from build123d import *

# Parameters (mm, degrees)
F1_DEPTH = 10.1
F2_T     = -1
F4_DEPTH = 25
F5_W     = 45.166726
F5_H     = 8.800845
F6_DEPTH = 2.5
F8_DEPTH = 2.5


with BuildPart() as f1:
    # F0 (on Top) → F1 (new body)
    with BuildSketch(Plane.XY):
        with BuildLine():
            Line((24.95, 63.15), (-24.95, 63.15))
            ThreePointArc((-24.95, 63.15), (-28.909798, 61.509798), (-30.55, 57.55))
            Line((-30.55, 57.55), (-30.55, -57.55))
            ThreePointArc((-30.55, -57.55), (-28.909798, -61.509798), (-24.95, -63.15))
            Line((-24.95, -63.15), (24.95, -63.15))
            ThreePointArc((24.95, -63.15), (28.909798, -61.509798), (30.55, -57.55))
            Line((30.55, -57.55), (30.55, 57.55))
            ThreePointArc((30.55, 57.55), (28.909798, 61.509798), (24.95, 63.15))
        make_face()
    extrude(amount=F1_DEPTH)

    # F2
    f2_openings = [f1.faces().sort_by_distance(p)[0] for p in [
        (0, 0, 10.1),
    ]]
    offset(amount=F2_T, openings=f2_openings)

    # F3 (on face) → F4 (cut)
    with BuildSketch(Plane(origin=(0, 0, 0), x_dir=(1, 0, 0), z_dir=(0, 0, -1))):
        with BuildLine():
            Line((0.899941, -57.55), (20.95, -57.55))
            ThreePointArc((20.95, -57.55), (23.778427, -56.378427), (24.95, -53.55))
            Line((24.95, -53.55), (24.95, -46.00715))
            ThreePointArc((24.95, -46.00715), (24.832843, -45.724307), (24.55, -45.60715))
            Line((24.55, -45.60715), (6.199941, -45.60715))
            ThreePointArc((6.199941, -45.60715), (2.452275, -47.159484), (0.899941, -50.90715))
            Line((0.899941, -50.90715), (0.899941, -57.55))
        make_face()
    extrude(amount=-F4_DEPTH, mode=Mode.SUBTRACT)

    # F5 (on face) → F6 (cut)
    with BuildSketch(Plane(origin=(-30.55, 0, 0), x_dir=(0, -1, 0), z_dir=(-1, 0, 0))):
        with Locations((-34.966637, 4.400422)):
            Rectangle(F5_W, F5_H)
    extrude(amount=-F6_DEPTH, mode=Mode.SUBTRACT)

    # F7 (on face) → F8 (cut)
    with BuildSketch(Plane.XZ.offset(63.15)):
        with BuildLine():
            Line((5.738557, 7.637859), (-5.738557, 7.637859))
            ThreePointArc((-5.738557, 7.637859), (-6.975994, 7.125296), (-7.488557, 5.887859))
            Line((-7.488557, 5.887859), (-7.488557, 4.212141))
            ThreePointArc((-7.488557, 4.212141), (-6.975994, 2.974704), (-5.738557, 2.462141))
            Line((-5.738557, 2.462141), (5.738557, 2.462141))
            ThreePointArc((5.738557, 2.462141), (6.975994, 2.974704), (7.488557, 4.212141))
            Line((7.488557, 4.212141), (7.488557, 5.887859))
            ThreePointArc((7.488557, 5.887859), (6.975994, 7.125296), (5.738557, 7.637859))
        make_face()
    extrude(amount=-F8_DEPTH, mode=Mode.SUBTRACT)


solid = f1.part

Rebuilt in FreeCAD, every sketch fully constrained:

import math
import FreeCAD as App
import Part
import Sketcher
Q = App.Units.Quantity


def faces_at(feature, points):
    """Names of the faces that lie closest to the given points."""
    faces = feature.Shape.Faces
    near = lambda p: min(range(len(faces)), key=lambda i: faces[i].distToShape(Part.Vertex(*p))[0])
    return sorted({f"Face{near(p) + 1}" for p in points})

doc = App.newDocument("Part")
body = doc.addObject("PartDesign::Body", "Body")

# Sketch on XY plane
sketch1 = body.newObject("Sketcher::SketchObject", "Sketch")
sketch1.AttachmentSupport = (doc.getObject("XY_Plane"), [""])
sketch1.MapMode = "FlatFace"
sketch1.addGeometry(Part.LineSegment(App.Vector(25, 63, 0), App.Vector(-25, 63, 0)), False)
sketch1.addGeometry(Part.ArcOfCircle(Part.Circle(App.Vector(-25, 58, 0), App.Vector(0, 0, 1), 6), math.radians(90), math.radians(180)), False)
sketch1.addGeometry(Part.LineSegment(App.Vector(-31, 58, 0), App.Vector(-31, -58, 0)), False)
sketch1.addGeometry(Part.ArcOfCircle(Part.Circle(App.Vector(-25, -58, 0), App.Vector(0, 0, 1), 6), math.radians(180), math.radians(270)), False)
sketch1.addGeometry(Part.LineSegment(App.Vector(-25, -63, 0), App.Vector(25, -63, 0)), False)
sketch1.addGeometry(Part.ArcOfCircle(Part.Circle(App.Vector(25, -58, 0), App.Vector(0, 0, 1), 6), math.radians(-90), math.radians(0)), False)
sketch1.addGeometry(Part.LineSegment(App.Vector(31, -58, 0), App.Vector(31, 58, 0)), False)
sketch1.addGeometry(Part.ArcOfCircle(Part.Circle(App.Vector(25, 58, 0), App.Vector(0, 0, 1), 6), math.radians(0), math.radians(90)), False)
sketch1.addConstraint(Sketcher.Constraint("Tangent", 0, 2, 1, 1))
sketch1.addConstraint(Sketcher.Constraint("Tangent", 1, 2, 2, 1))
sketch1.addConstraint(Sketcher.Constraint("Tangent", 2, 2, 3, 1))
sketch1.addConstraint(Sketcher.Constraint("Tangent", 3, 2, 4, 1))
sketch1.addConstraint(Sketcher.Constraint("Tangent", 4, 2, 5, 1))
sketch1.addConstraint(Sketcher.Constraint("Tangent", 5, 2, 6, 1))
sketch1.addConstraint(Sketcher.Constraint("Tangent", 6, 2, 7, 1))
sketch1.addConstraint(Sketcher.Constraint("Tangent", 7, 2, 0, 1))
sketch1.addConstraint(Sketcher.Constraint("Horizontal", 0))
sketch1.addConstraint(Sketcher.Constraint("Vertical", 2))
sketch1.addConstraint(Sketcher.Constraint("Horizontal", 4))
sketch1.addConstraint(Sketcher.Constraint("Vertical", 6))
sketch1.addConstraint(Sketcher.Constraint("Equal", 1, 3))
sketch1.addConstraint(Sketcher.Constraint("Equal", 3, 5))
sketch1.addConstraint(Sketcher.Constraint("Equal", 5, 7))
sketch1.addConstraint(Sketcher.Constraint("Symmetric", 1, 3, 5, 3, -1, 1))
sketch1.addConstraint(Sketcher.Constraint("Radius", 1, Q("5.6 mm")))
sketch1.addConstraint(Sketcher.Constraint("DistanceX", 0, 2, 0, 1, Q("49.9 mm")))
sketch1.addConstraint(Sketcher.Constraint("DistanceY", 2, 2, 2, 1, Q("115.1 mm")))
pad1 = body.newObject("PartDesign::Pad", "Pad")
pad1.Profile = sketch1
pad1.Length = 10.1
doc.recompute()

thickness = body.newObject("PartDesign::Thickness", "Thickness")
thickness.Base = (pad1, faces_at(pad1, [(0, 0, 10.1)]))
thickness.Value = 1
thickness.Reversed = True
thickness.Join = "Arc"

# Sketch on XY plane
sketch2 = body.newObject("Sketcher::SketchObject", "Sketch001")
sketch2.AttachmentSupport = (doc.getObject("XY_Plane"), [""])
sketch2.MapMode = "FlatFace"
sketch2.addGeometry(Part.LineSegment(App.Vector(0.9, 57.55, 0), App.Vector(20.95, 57.55, 0)), False)
sketch2.addGeometry(Part.ArcOfCircle(Part.Circle(App.Vector(20.95, 53.55, 0), App.Vector(0, 0, 1), 4), math.radians(0), math.radians(90)), False)
sketch2.addGeometry(Part.LineSegment(App.Vector(24.95, 53.55, 0), App.Vector(24.95, 46.01, 0)), False)
sketch2.addGeometry(Part.ArcOfCircle(Part.Circle(App.Vector(24.55, 46.01, 0), App.Vector(0, 0, 1), 0.4), math.radians(-90), math.radians(0)), False)
sketch2.addGeometry(Part.LineSegment(App.Vector(24.55, 45.61, 0), App.Vector(6.2, 45.61, 0)), False)
sketch2.addGeometry(Part.ArcOfCircle(Part.Circle(App.Vector(6.2, 50.91, 0), App.Vector(0, 0, 1), 5.3), math.radians(180), math.radians(270)), False)
sketch2.addGeometry(Part.LineSegment(App.Vector(0.9, 50.91, 0), App.Vector(0.9, 57.55, 0)), False)
sketch2.addConstraint(Sketcher.Constraint("Tangent", 0, 2, 1, 2))
sketch2.addConstraint(Sketcher.Constraint("Tangent", 1, 1, 2, 1))
sketch2.addConstraint(Sketcher.Constraint("Coincident", 2, 2, 3, 2))
sketch2.addConstraint(Sketcher.Constraint("Coincident", 3, 1, 4, 1))
sketch2.addConstraint(Sketcher.Constraint("Tangent", 4, 2, 5, 2))
sketch2.addConstraint(Sketcher.Constraint("Tangent", 5, 1, 6, 1))
sketch2.addConstraint(Sketcher.Constraint("Coincident", 6, 2, 0, 1))
sketch2.addConstraint(Sketcher.Constraint("Horizontal", 0))
sketch2.addConstraint(Sketcher.Constraint("Vertical", 2))
sketch2.addConstraint(Sketcher.Constraint("Horizontal", 4))
sketch2.addConstraint(Sketcher.Constraint("Vertical", 6))
sketch2.addConstraint(Sketcher.Constraint("Horizontal", 3, 3, 2, 2))
sketch2.addConstraint(Sketcher.Constraint("Radius", 1, Q("4 mm")))
sketch2.addConstraint(Sketcher.Constraint("Radius", 3, Q("0.399999 mm")))
sketch2.addConstraint(Sketcher.Constraint("Radius", 5, Q("5.3 mm")))
sketch2.addConstraint(Sketcher.Constraint("DistanceX", 3, 1, 2, 2, Q("0.4 mm")))
sketch2.addConstraint(Sketcher.Constraint("DistanceX", -1, 1, 1, 3, Q("20.95 mm")))
sketch2.addConstraint(Sketcher.Constraint("DistanceY", -1, 1, 1, 3, Q("53.55 mm")))
sketch2.addConstraint(Sketcher.Constraint("DistanceX", 0, 1, 0, 2, Q("20.050059 mm")))
sketch2.addConstraint(Sketcher.Constraint("DistanceY", 2, 2, 2, 1, Q("7.54285 mm")))
pocket1 = body.newObject("PartDesign::Pocket", "Pocket")
pocket1.Profile = sketch2
pocket1.Length = 25
pocket1.Reversed = True

# Sketch on YZ plane
sketch3 = body.newObject("Sketcher::SketchObject", "Sketch002")
sketch3.AttachmentSupport = (doc.getObject("YZ_Plane"), [""])
sketch3.MapMode = "FlatFace"
sketch3.AttachmentOffset = App.Placement(App.Vector(0, 0, -30.55), App.Rotation())
sketch3.addGeometry(Part.LineSegment(App.Vector(58, 9, 0), App.Vector(58, 0, 0)), False)
sketch3.addGeometry(Part.LineSegment(App.Vector(58, 0, 0), App.Vector(12, 0, 0)), False)
sketch3.addGeometry(Part.LineSegment(App.Vector(12, 0, 0), App.Vector(12, 9, 0)), False)
sketch3.addGeometry(Part.LineSegment(App.Vector(12, 9, 0), App.Vector(58, 9, 0)), False)
sketch3.addConstraint(Sketcher.Constraint("Coincident", 0, 2, 1, 1))
sketch3.addConstraint(Sketcher.Constraint("Coincident", 1, 2, 2, 1))
sketch3.addConstraint(Sketcher.Constraint("Coincident", 2, 2, 3, 1))
sketch3.addConstraint(Sketcher.Constraint("Coincident", 3, 2, 0, 1))
sketch3.addConstraint(Sketcher.Constraint("Vertical", 0))
sketch3.addConstraint(Sketcher.Constraint("Horizontal", 1))
sketch3.addConstraint(Sketcher.Constraint("Vertical", 2))
sketch3.addConstraint(Sketcher.Constraint("Horizontal", 3))
sketch3.addConstraint(Sketcher.Constraint("PointOnObject", 0, 2, -1))
sketch3.addConstraint(Sketcher.Constraint("DistanceX", -1, 1, 0, 2, Q("57.55 mm")))
sketch3.addConstraint(Sketcher.Constraint("DistanceX", 1, 2, 1, 1, Q("45.166726 mm")))
sketch3.addConstraint(Sketcher.Constraint("DistanceY", 0, 2, 0, 1, Q("8.800845 mm")))
pocket2 = body.newObject("PartDesign::Pocket", "Pocket001")
pocket2.Profile = sketch3
pocket2.Length = 2.5
pocket2.Reversed = True

# Sketch on XZ plane
sketch4 = body.newObject("Sketcher::SketchObject", "Sketch003")
sketch4.AttachmentSupport = (doc.getObject("XZ_Plane"), [""])
sketch4.MapMode = "FlatFace"
sketch4.AttachmentOffset = App.Placement(App.Vector(0, 0, 63.15), App.Rotation())
sketch4.addGeometry(Part.LineSegment(App.Vector(5.7, 7.6, 0), App.Vector(-5.7, 7.6, 0)), False)
sketch4.addGeometry(Part.ArcOfCircle(Part.Circle(App.Vector(-5.7, 5.9, 0), App.Vector(0, 0, 1), 1.7), math.radians(90), math.radians(180)), False)
sketch4.addGeometry(Part.LineSegment(App.Vector(-7.5, 5.9, 0), App.Vector(-7.5, 4.2, 0)), False)
sketch4.addGeometry(Part.ArcOfCircle(Part.Circle(App.Vector(-5.7, 4.2, 0), App.Vector(0, 0, 1), 1.7), math.radians(180), math.radians(270)), False)
sketch4.addGeometry(Part.LineSegment(App.Vector(-5.7, 2.5, 0), App.Vector(5.7, 2.5, 0)), False)
sketch4.addGeometry(Part.ArcOfCircle(Part.Circle(App.Vector(5.7, 4.2, 0), App.Vector(0, 0, 1), 1.7), math.radians(-90), math.radians(0)), False)
sketch4.addGeometry(Part.LineSegment(App.Vector(7.5, 4.2, 0), App.Vector(7.5, 5.9, 0)), False)
sketch4.addGeometry(Part.ArcOfCircle(Part.Circle(App.Vector(5.7, 5.9, 0), App.Vector(0, 0, 1), 1.7), math.radians(0), math.radians(90)), False)
sketch4.addConstraint(Sketcher.Constraint("Tangent", 0, 2, 1, 1))
sketch4.addConstraint(Sketcher.Constraint("Tangent", 1, 2, 2, 1))
sketch4.addConstraint(Sketcher.Constraint("Tangent", 2, 2, 3, 1))
sketch4.addConstraint(Sketcher.Constraint("Tangent", 3, 2, 4, 1))
sketch4.addConstraint(Sketcher.Constraint("Tangent", 4, 2, 5, 1))
sketch4.addConstraint(Sketcher.Constraint("Tangent", 5, 2, 6, 1))
sketch4.addConstraint(Sketcher.Constraint("Tangent", 6, 2, 7, 1))
sketch4.addConstraint(Sketcher.Constraint("Tangent", 7, 2, 0, 1))
sketch4.addConstraint(Sketcher.Constraint("Horizontal", 0))
sketch4.addConstraint(Sketcher.Constraint("Vertical", 2))
sketch4.addConstraint(Sketcher.Constraint("Horizontal", 4))
sketch4.addConstraint(Sketcher.Constraint("Vertical", 6))
sketch4.addConstraint(Sketcher.Constraint("Equal", 1, 3))
sketch4.addConstraint(Sketcher.Constraint("Equal", 3, 5))
sketch4.addConstraint(Sketcher.Constraint("Equal", 5, 7))
sketch4.addConstraint(Sketcher.Constraint("Radius", 1, Q("1.75 mm")))
sketch4.addConstraint(Sketcher.Constraint("DistanceX", 0, 2, 0, 1, Q("11.477114 mm")))
sketch4.addConstraint(Sketcher.Constraint("DistanceY", 2, 2, 2, 1, Q("1.675718 mm")))
sketch4.addConstraint(Sketcher.Constraint("DistanceY", -1, 1, 1, 3, Q("5.887859 mm")))
sketch4.addConstraint(Sketcher.Constraint("DistanceX", 1, 3, -1, 1, Q("5.738557 mm")))
pocket3 = body.newObject("PartDesign::Pocket", "Pocket002")
pocket3.Profile = sketch4
pocket3.Length = 2.5

doc.recompute()
